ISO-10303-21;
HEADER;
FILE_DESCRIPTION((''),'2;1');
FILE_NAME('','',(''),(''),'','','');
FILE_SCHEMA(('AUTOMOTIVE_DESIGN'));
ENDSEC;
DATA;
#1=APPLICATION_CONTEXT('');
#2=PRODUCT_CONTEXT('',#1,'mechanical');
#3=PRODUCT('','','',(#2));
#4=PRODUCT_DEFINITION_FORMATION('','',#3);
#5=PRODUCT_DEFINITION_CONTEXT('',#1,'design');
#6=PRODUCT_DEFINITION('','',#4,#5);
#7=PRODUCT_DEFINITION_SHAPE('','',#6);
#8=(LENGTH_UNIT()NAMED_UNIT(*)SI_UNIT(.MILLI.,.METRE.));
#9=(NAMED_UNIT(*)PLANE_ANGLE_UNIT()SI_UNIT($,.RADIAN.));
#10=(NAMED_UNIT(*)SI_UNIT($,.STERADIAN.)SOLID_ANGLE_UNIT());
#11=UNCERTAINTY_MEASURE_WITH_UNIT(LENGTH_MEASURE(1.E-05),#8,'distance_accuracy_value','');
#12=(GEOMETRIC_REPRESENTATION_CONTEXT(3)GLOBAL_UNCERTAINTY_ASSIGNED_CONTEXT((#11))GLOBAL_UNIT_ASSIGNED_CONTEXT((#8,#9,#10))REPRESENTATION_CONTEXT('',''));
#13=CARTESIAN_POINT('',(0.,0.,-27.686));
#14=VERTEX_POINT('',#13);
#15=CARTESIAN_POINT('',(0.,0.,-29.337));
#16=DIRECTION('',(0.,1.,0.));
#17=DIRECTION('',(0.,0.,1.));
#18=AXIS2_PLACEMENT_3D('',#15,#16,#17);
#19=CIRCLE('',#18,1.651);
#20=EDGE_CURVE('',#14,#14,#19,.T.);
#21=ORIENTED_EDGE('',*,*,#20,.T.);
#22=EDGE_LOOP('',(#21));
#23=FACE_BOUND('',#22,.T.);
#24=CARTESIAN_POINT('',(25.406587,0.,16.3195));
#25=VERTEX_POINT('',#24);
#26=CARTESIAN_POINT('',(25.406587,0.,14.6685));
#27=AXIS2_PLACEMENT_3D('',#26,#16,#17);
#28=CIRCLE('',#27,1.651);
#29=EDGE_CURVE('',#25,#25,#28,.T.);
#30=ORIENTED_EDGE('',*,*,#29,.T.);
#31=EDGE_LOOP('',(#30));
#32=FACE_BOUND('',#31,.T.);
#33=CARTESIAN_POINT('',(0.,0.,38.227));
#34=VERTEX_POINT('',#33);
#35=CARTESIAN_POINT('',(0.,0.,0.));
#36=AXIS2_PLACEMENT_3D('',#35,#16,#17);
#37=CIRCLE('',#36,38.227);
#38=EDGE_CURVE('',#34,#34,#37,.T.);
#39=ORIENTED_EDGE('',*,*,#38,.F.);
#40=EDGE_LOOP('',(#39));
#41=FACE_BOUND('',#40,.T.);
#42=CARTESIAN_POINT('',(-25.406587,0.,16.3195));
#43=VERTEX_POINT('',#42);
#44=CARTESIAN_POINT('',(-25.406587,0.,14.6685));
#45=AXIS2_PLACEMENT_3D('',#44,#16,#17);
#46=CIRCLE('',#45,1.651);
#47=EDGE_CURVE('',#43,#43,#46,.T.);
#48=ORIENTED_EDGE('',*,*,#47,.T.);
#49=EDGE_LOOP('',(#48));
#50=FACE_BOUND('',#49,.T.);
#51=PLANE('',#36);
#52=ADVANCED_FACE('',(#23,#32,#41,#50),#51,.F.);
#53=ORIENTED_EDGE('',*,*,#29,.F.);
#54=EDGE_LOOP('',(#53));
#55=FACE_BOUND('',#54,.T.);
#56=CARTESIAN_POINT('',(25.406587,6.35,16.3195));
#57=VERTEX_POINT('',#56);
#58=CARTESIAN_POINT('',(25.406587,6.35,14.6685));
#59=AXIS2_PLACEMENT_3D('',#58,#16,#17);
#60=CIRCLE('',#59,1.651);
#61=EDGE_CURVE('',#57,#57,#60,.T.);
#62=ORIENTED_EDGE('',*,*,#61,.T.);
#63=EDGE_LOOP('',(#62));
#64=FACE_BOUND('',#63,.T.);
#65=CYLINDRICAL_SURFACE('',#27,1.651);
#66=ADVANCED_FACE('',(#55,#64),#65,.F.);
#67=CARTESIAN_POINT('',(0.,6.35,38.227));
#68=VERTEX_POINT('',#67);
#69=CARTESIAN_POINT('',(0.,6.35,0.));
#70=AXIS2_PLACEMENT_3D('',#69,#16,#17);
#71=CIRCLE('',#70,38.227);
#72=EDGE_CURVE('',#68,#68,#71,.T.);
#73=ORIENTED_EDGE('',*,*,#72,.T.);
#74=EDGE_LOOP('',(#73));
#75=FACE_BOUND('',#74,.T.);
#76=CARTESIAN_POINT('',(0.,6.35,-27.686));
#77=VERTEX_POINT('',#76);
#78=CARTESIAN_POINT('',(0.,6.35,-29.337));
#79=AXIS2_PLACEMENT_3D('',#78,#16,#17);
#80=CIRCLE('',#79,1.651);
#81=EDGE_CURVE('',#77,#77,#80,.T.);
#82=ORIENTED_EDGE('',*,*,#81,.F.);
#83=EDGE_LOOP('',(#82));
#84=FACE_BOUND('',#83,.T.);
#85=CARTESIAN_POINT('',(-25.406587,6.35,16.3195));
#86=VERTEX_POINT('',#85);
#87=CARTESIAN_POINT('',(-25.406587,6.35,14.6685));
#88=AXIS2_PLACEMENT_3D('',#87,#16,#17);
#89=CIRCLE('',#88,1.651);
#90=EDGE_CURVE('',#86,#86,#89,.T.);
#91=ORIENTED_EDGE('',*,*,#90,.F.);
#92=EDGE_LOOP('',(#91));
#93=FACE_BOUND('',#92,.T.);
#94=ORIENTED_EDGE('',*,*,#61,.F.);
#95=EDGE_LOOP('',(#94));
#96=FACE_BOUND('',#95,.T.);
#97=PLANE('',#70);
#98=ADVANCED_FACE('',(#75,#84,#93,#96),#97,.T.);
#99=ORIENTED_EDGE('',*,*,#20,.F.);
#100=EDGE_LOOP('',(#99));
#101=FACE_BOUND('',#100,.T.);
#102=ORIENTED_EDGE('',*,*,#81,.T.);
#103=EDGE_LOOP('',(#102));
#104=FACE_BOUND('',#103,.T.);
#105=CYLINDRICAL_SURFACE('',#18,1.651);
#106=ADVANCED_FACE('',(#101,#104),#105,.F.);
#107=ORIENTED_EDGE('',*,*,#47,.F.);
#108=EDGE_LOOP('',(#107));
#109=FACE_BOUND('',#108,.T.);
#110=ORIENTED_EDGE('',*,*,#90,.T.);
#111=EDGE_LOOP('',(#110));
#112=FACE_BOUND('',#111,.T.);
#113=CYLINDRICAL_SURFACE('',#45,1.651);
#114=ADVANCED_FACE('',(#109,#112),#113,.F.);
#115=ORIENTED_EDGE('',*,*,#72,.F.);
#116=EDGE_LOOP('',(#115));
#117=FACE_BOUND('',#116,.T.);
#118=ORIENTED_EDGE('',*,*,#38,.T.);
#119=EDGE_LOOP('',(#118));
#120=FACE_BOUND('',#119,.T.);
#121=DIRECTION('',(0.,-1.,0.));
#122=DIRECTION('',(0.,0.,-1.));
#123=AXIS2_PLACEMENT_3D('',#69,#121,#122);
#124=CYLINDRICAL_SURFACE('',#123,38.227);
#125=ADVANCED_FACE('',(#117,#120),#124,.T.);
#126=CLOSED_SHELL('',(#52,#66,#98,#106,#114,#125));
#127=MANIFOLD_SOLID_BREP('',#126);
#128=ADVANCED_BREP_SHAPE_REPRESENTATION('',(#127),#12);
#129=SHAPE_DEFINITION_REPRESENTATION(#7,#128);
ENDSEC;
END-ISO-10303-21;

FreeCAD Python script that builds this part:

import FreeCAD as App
import Part
import Sketcher

V = App.Vector
Q = App.Units.Quantity

doc = App.newDocument("Part")
body = doc.addObject("PartDesign::Body", "Body")

sketch1 = body.newObject("Sketcher::SketchObject", "Sketch")
sketch1.AttachmentSupport = (doc.getObject("XZ_Plane"), [""])
sketch1.MapMode = "FlatFace"
sketch1.addGeometry(Part.Circle(V(0, 0, 0), V(0, 0, 1), 38), False)
sketch1.addConstraint(Sketcher.Constraint("Coincident", 0, 3, -1, 1))
sketch1.addConstraint(Sketcher.Constraint("Diameter", 0, Q("3.01 in")))
pad1 = body.newObject("PartDesign::Pad", "Pad")
pad1.Profile = sketch1
pad1.Length = Q("0.25 in")
pad1.Reversed = True

sketch2 = body.newObject("Sketcher::SketchObject", "Sketch001")
sketch2.AttachmentSupport = (doc.getObject("XZ_Plane"), [""])
sketch2.MapMode = "FlatFace"
sketch2.AttachmentOffset = App.Placement(V(0, 0, -0.25 * 25.4), App.Rotation())
sketch2.addGeometry(Part.Circle(V(0, -29.3, 0), V(0, 0, 1), 1.7), False)
sketch2.addGeometry(Part.Circle(V(25.4, 14.7, 0), V(0, 0, 1), 1.7), False)
sketch2.addGeometry(Part.Circle(V(-25.4, 14.7, 0), V(0, 0, 1), 1.7), False)
sketch2.addConstraint(Sketcher.Constraint("Equal", 0, 1))
sketch2.addConstraint(Sketcher.Constraint("Equal", 1, 2))
sketch2.addConstraint(Sketcher.Constraint("Symmetric", 1, 3, 2, 3, -2))
sketch2.addConstraint(Sketcher.Constraint("PointOnObject", 0, 3, -2))
sketch2.addConstraint(Sketcher.Constraint("Diameter", 0, Q("0.13 in")))
sketch2.addConstraint(Sketcher.Constraint("DistanceY", 0, 3, -1, 1, Q("1.155 in")))
sketch2.addConstraint(Sketcher.Constraint("DistanceY", -1, 1, 1, 3, Q("0.5775 in")))
sketch2.addConstraint(Sketcher.Constraint("DistanceX", -1, 1, 1, 3, 25.406587))
pocket1 = body.newObject("PartDesign::Pocket", "Pocket")
pocket1.Profile = sketch2
pocket1.Type = "ThroughAll"
pocket1.Reversed = True

doc.recompute()
